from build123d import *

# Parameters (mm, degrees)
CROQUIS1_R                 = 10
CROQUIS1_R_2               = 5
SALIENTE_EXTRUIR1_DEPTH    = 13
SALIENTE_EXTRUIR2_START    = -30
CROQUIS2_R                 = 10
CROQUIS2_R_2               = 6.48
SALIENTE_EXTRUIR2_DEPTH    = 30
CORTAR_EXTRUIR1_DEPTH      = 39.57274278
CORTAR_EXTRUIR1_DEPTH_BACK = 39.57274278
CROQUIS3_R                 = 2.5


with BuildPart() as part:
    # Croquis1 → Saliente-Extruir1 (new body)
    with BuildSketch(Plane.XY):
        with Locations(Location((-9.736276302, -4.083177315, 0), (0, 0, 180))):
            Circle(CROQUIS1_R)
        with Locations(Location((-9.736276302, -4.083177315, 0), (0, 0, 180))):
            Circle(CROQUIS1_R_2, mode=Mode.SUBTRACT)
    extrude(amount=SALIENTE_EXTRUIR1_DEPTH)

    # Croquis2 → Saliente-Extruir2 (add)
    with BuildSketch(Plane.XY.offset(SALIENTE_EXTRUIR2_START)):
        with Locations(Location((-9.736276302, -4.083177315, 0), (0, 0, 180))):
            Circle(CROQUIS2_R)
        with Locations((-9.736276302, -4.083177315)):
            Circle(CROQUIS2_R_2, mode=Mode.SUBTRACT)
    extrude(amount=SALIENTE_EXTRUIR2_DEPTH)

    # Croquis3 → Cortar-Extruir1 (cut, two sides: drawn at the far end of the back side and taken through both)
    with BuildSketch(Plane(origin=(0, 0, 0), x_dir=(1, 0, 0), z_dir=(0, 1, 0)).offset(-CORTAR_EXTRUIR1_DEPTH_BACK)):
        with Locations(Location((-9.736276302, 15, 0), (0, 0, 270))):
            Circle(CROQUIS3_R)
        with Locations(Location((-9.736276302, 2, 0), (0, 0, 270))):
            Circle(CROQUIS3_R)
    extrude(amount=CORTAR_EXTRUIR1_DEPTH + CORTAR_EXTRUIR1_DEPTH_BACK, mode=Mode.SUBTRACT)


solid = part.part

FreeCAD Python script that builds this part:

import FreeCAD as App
import Part
import Sketcher
from FreeCAD import Vector

doc = App.newDocument("Part")
body = doc.addObject("PartDesign::Body", "Body")

# Sketch on XY plane
sketch1 = doc.addObject("Sketcher::SketchObject", "Sketch")
body.addObject(sketch1)
sketch1.AttachmentSupport = (doc.XY_Plane, [""])
sketch1.MapMode = "FlatFace"
sketch1.addGeometry([
    Part.Circle(Vector(-10, -4, 0), Vector(0, 0, 1), 10),
    Part.Circle(Vector(-10, -4, 0), Vector(0, 0, 1), 5),
], False)
sketch1.addConstraint([
    Sketcher.Constraint("Coincident", 1, 3, 0, 3),
    Sketcher.Constraint("Diameter", 0, 20.0),
    Sketcher.Constraint("Diameter", 1, 10.0),
    Sketcher.Constraint("DistanceX", 0, 3, -1, 1, 9.736276),
    Sketcher.Constraint("DistanceY", 0, 3, -1, 1, 4.083177),
])
pad1 = doc.addObject("PartDesign::Pad", "Pad")
body.addObject(pad1)
pad1.Profile = sketch1
pad1.Length = 13

# Sketch on XY plane
sketch2 = doc.addObject("Sketcher::SketchObject", "Sketch001")
body.addObject(sketch2)
sketch2.AttachmentSupport = (doc.XY_Plane, [""])
sketch2.MapMode = "FlatFace"
sketch2.AttachmentOffset = App.Placement(Vector(0, 0, -30), App.Rotation())
sketch2.addGeometry([
    Part.Circle(Vector(-10, -4, 0), Vector(0, 0, 1), 10),
    Part.Circle(Vector(-10, -4, 0), Vector(0, 0, 1), 6),
], False)
sketch2.addConstraint([
    Sketcher.Constraint("Coincident", 1, 3, 0, 3),
    Sketcher.Constraint("Diameter", 0, 20.0),
    Sketcher.Constraint("Diameter", 1, 12.96),
    Sketcher.Constraint("DistanceX", 0, 3, -1, 1, 9.736276),
    Sketcher.Constraint("DistanceY", 0, 3, -1, 1, 4.083177),
])
pad2 = doc.addObject("PartDesign::Pad", "Pad001")
body.addObject(pad2)
pad2.Profile = sketch2
pad2.Length = 30

# Sketch on XZ plane
sketch3 = doc.addObject("Sketcher::SketchObject", "Sketch002")
body.addObject(sketch3)
sketch3.AttachmentSupport = (doc.XZ_Plane, [""])
sketch3.MapMode = "FlatFace"
sketch3.addGeometry([
    Part.Circle(Vector(-9.7, -15, 0), Vector(0, 0, 1), 2.5),
    Part.Circle(Vector(-9.7, -2, 0), Vector(0, 0, 1), 2.5),
], False)
sketch3.addConstraint([
    Sketcher.Constraint("Equal", 0, 1),
    Sketcher.Constraint("Vertical", 0, 3, 1, 3),
    Sketcher.Constraint("Diameter", 0, 5.0),
    Sketcher.Constraint("DistanceY", 0, 3, -1, 1, 15.0),
    Sketcher.Constraint("DistanceY", 1, 3, -1, 1, 2.0),
    Sketcher.Constraint("DistanceX", 0, 3, -1, 1, 9.736276),
])
pocket1 = doc.addObject("PartDesign::Pocket", "Pocket")
body.addObject(pocket1)
pocket1.Profile = sketch3
pocket1.Type = "ThroughAll"
pocket1.Midplane = True

doc.recompute()
